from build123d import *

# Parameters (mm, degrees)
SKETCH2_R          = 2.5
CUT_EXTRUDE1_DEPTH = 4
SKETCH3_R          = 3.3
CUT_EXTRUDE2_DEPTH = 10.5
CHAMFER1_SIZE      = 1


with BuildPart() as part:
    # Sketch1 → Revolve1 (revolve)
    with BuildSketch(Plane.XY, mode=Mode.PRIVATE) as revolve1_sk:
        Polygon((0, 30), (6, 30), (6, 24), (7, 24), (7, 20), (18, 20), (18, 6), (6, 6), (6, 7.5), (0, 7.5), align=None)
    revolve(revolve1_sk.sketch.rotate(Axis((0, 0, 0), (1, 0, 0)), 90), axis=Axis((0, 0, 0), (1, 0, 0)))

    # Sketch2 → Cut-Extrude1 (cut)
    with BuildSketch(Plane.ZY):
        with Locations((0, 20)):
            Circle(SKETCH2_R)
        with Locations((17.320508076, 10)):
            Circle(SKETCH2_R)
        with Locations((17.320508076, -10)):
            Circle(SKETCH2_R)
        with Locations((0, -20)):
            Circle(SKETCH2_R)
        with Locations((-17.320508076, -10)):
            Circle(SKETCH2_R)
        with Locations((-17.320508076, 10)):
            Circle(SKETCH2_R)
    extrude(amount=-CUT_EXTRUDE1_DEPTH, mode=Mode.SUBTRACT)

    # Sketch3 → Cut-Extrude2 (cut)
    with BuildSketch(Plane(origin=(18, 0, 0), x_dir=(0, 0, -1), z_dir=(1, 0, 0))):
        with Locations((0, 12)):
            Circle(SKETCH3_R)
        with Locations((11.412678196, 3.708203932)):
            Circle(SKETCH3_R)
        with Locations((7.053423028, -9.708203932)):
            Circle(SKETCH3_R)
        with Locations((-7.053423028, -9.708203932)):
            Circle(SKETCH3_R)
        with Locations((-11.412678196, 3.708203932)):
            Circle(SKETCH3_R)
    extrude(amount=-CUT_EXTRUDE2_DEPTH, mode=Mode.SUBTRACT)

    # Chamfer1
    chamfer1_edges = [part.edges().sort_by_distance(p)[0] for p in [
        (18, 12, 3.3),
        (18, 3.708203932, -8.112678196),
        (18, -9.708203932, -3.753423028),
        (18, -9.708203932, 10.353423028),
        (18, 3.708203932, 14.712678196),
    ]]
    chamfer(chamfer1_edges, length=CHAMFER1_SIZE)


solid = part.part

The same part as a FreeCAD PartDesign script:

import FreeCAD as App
import Part
import Sketcher


def edges_at(feature, points):
    """Names of the edges that pass closest to the given points."""
    edges = feature.Shape.Edges
    near = lambda p: min(range(len(edges)), key=lambda i: edges[i].distToShape(Part.Vertex(*p))[0])
    return sorted({f"Edge{near(p) + 1}" for p in points})


def add_polygon(sketch, points):
    """Adds a closed chain of lines whose ends are joined by coincident constraints."""
    first, n = sketch.GeometryCount, len(points)
    for a, b in zip(points, points[1:] + points[:1]):
        sketch.addGeometry(Part.LineSegment(App.Vector(*a, 0), App.Vector(*b, 0)), False)
    for i in range(n):
        sketch.addConstraint(Sketcher.Constraint("Coincident", first + i, 2, first + (i + 1) % n, 1))

doc = App.newDocument("Part")
body = doc.addObject("PartDesign::Body", "Body")

# Sketch on XY plane
sketch1 = body.newObject("Sketcher::SketchObject", "Sketch")
sketch1.AttachmentSupport = (doc.getObject("XY_Plane"), [""])
sketch1.MapMode = "FlatFace"
add_polygon(sketch1, [(6, 30), (0, 30), (0, 7.5), (6, 7.5), (6, 6), (18, 6), (18, 20), (7, 20), (7, 24), (6, 24)])  # lines 0-9
sketch1.addConstraint([
    Sketcher.Constraint("Horizontal", 0),
    Sketcher.Constraint("Vertical", 1),
    Sketcher.Constraint("Horizontal", 2),
    Sketcher.Constraint("Vertical", 3),
    Sketcher.Constraint("Horizontal", 4),
    Sketcher.Constraint("Vertical", 5),
    Sketcher.Constraint("Horizontal", 6),
    Sketcher.Constraint("Vertical", 7),
    Sketcher.Constraint("Horizontal", 8),
    Sketcher.Constraint("Vertical", 9),
    Sketcher.Constraint("PointOnObject", 0, 2, -2),
    Sketcher.Constraint("Vertical", 3, 2, 8, 2),
    Sketcher.Constraint("Equal", 2, 9),
    Sketcher.Constraint("DistanceX", 0, 2, 0, 1, 6.0),
    Sketcher.Constraint("DistanceX", 4, 1, 4, 2, 12.0),
    Sketcher.Constraint("DistanceX", 6, 2, 6, 1, 11.0),
    Sketcher.Constraint("DistanceY", 5, 1, 5, 2, 14.0),
    Sketcher.Constraint("DistanceY", 7, 1, 7, 2, 4.0),
    Sketcher.Constraint("DistanceY", 1, 2, 1, 1, 22.5),
    Sketcher.Constraint("DistanceY", -1, 1, 0, 2, 30.0),
])
revolution = body.newObject("PartDesign::Revolution", "Revolution")
revolution.Profile = sketch1
revolution.ReferenceAxis = (sketch1, ["H_Axis"])
revolution.Angle = 360

# Sketch on YZ plane
sketch2 = body.newObject("Sketcher::SketchObject", "Sketch001")
sketch2.AttachmentSupport = (doc.getObject("YZ_Plane"), [""])
sketch2.MapMode = "FlatFace"
sketch2.addGeometry([
    Part.Circle(App.Vector(20, 0, 0), App.Vector(0, 0, 1), 2.5),  # 0
    Part.Circle(App.Vector(10, 17.320508, 0), App.Vector(0, 0, 1), 2.5),  # 1
    Part.Circle(App.Vector(-10, 17.320508, 0), App.Vector(0, 0, 1), 2.5),  # 2
    Part.Circle(App.Vector(-20, 0, 0), App.Vector(0, 0, 1), 2.5),  # 3
    Part.Circle(App.Vector(-10, -17.320508, 0), App.Vector(0, 0, 1), 2.5),  # 4
    Part.Circle(App.Vector(10, -17.320508, 0), App.Vector(0, 0, 1), 2.5),  # 5
], False)
sketch2.addConstraint([
    Sketcher.Constraint("Equal", 0, 1),
    Sketcher.Constraint("Equal", 1, 2),
    Sketcher.Constraint("Equal", 2, 3),
    Sketcher.Constraint("Equal", 3, 4),
    Sketcher.Constraint("Equal", 4, 5),
    Sketcher.Constraint("Symmetric", 0, 3, 3, 3, -1, 1),
    Sketcher.Constraint("Symmetric", 1, 3, 4, 3, -1, 1),
    Sketcher.Constraint("Symmetric", 2, 3, 5, 3, -1, 1),
    Sketcher.Constraint("Symmetric", 1, 3, 2, 3, -2),
    Sketcher.Constraint("PointOnObject", 0, 3, -1),
    Sketcher.Constraint("Diameter", 0, 5.0),
    Sketcher.Constraint("DistanceX", -1, 1, 0, 3, 20.0),
    Sketcher.Constraint("DistanceX", -1, 1, 1, 3, 10.0),
    Sketcher.Constraint("DistanceY", -1, 1, 1, 3, 17.320508),
])
pocket1 = body.newObject("PartDesign::Pocket", "Pocket")
pocket1.Profile = sketch2
pocket1.Length = 4
pocket1.Reversed = True

# Sketch on YZ plane
sketch3 = body.newObject("Sketcher::SketchObject", "Sketch002")
sketch3.AttachmentSupport = (doc.getObject("YZ_Plane"), [""])
sketch3.MapMode = "FlatFace"
sketch3.AttachmentOffset = App.Placement(App.Vector(0, 0, 18), App.Rotation())
sketch3.addGeometry([
    Part.Circle(App.Vector(12, 0, 0), App.Vector(0, 0, 1), 3.3),  # 0
    Part.Circle(App.Vector(3.708204, -11.412678, 0), App.Vector(0, 0, 1), 3.3),  # 1
    Part.Circle(App.Vector(-9.708204, -7.053423, 0), App.Vector(0, 0, 1), 3.3),  # 2
    Part.Circle(App.Vector(-9.708204, 7.053423, 0), App.Vector(0, 0, 1), 3.3),  # 3
    Part.Circle(App.Vector(3.708204, 11.412678, 0), App.Vector(0, 0, 1), 3.3),  # 4
], False)
sketch3.addConstraint([
    Sketcher.Constraint("Equal", 0, 1),
    Sketcher.Constraint("Equal", 1, 2),
    Sketcher.Constraint("Equal", 2, 3),
    Sketcher.Constraint("Equal", 3, 4),
    Sketcher.Constraint("Symmetric", 2, 3, 3, 3, -1),
    Sketcher.Constraint("Symmetric", 1, 3, 4, 3, -1),
    Sketcher.Constraint("PointOnObject", 0, 3, -1),
    Sketcher.Constraint("Diameter", 0, 6.6),
    Sketcher.Constraint("DistanceX", -1, 1, 0, 3, 12.0),
    Sketcher.Constraint("DistanceY", 1, 3, 3, 3, 18.466101),
    Sketcher.Constraint("DistanceY", 1, 3, -1, 1, 11.412678),
    Sketcher.Constraint("DistanceX", -1, 1, 1, 3, 3.708204),
    Sketcher.Constraint("DistanceX", 2, 3, -1, 1, 9.708204),
])
pocket2 = body.newObject("PartDesign::Pocket", "Pocket001")
pocket2.Profile = sketch3
pocket2.Length = 10.5
doc.recompute()

chamfer = body.newObject("PartDesign::Chamfer", "Chamfer")
chamfer.Base = (pocket2, edges_at(pocket2, [
    (18, 12, 3.3),
    (18, 3.708, -8.113),
    (18, -9.708, -3.753),
    (18, -9.708, 10.353),
    (18, 3.708, 14.713),
]))
chamfer.Size = 1

doc.recompute()
